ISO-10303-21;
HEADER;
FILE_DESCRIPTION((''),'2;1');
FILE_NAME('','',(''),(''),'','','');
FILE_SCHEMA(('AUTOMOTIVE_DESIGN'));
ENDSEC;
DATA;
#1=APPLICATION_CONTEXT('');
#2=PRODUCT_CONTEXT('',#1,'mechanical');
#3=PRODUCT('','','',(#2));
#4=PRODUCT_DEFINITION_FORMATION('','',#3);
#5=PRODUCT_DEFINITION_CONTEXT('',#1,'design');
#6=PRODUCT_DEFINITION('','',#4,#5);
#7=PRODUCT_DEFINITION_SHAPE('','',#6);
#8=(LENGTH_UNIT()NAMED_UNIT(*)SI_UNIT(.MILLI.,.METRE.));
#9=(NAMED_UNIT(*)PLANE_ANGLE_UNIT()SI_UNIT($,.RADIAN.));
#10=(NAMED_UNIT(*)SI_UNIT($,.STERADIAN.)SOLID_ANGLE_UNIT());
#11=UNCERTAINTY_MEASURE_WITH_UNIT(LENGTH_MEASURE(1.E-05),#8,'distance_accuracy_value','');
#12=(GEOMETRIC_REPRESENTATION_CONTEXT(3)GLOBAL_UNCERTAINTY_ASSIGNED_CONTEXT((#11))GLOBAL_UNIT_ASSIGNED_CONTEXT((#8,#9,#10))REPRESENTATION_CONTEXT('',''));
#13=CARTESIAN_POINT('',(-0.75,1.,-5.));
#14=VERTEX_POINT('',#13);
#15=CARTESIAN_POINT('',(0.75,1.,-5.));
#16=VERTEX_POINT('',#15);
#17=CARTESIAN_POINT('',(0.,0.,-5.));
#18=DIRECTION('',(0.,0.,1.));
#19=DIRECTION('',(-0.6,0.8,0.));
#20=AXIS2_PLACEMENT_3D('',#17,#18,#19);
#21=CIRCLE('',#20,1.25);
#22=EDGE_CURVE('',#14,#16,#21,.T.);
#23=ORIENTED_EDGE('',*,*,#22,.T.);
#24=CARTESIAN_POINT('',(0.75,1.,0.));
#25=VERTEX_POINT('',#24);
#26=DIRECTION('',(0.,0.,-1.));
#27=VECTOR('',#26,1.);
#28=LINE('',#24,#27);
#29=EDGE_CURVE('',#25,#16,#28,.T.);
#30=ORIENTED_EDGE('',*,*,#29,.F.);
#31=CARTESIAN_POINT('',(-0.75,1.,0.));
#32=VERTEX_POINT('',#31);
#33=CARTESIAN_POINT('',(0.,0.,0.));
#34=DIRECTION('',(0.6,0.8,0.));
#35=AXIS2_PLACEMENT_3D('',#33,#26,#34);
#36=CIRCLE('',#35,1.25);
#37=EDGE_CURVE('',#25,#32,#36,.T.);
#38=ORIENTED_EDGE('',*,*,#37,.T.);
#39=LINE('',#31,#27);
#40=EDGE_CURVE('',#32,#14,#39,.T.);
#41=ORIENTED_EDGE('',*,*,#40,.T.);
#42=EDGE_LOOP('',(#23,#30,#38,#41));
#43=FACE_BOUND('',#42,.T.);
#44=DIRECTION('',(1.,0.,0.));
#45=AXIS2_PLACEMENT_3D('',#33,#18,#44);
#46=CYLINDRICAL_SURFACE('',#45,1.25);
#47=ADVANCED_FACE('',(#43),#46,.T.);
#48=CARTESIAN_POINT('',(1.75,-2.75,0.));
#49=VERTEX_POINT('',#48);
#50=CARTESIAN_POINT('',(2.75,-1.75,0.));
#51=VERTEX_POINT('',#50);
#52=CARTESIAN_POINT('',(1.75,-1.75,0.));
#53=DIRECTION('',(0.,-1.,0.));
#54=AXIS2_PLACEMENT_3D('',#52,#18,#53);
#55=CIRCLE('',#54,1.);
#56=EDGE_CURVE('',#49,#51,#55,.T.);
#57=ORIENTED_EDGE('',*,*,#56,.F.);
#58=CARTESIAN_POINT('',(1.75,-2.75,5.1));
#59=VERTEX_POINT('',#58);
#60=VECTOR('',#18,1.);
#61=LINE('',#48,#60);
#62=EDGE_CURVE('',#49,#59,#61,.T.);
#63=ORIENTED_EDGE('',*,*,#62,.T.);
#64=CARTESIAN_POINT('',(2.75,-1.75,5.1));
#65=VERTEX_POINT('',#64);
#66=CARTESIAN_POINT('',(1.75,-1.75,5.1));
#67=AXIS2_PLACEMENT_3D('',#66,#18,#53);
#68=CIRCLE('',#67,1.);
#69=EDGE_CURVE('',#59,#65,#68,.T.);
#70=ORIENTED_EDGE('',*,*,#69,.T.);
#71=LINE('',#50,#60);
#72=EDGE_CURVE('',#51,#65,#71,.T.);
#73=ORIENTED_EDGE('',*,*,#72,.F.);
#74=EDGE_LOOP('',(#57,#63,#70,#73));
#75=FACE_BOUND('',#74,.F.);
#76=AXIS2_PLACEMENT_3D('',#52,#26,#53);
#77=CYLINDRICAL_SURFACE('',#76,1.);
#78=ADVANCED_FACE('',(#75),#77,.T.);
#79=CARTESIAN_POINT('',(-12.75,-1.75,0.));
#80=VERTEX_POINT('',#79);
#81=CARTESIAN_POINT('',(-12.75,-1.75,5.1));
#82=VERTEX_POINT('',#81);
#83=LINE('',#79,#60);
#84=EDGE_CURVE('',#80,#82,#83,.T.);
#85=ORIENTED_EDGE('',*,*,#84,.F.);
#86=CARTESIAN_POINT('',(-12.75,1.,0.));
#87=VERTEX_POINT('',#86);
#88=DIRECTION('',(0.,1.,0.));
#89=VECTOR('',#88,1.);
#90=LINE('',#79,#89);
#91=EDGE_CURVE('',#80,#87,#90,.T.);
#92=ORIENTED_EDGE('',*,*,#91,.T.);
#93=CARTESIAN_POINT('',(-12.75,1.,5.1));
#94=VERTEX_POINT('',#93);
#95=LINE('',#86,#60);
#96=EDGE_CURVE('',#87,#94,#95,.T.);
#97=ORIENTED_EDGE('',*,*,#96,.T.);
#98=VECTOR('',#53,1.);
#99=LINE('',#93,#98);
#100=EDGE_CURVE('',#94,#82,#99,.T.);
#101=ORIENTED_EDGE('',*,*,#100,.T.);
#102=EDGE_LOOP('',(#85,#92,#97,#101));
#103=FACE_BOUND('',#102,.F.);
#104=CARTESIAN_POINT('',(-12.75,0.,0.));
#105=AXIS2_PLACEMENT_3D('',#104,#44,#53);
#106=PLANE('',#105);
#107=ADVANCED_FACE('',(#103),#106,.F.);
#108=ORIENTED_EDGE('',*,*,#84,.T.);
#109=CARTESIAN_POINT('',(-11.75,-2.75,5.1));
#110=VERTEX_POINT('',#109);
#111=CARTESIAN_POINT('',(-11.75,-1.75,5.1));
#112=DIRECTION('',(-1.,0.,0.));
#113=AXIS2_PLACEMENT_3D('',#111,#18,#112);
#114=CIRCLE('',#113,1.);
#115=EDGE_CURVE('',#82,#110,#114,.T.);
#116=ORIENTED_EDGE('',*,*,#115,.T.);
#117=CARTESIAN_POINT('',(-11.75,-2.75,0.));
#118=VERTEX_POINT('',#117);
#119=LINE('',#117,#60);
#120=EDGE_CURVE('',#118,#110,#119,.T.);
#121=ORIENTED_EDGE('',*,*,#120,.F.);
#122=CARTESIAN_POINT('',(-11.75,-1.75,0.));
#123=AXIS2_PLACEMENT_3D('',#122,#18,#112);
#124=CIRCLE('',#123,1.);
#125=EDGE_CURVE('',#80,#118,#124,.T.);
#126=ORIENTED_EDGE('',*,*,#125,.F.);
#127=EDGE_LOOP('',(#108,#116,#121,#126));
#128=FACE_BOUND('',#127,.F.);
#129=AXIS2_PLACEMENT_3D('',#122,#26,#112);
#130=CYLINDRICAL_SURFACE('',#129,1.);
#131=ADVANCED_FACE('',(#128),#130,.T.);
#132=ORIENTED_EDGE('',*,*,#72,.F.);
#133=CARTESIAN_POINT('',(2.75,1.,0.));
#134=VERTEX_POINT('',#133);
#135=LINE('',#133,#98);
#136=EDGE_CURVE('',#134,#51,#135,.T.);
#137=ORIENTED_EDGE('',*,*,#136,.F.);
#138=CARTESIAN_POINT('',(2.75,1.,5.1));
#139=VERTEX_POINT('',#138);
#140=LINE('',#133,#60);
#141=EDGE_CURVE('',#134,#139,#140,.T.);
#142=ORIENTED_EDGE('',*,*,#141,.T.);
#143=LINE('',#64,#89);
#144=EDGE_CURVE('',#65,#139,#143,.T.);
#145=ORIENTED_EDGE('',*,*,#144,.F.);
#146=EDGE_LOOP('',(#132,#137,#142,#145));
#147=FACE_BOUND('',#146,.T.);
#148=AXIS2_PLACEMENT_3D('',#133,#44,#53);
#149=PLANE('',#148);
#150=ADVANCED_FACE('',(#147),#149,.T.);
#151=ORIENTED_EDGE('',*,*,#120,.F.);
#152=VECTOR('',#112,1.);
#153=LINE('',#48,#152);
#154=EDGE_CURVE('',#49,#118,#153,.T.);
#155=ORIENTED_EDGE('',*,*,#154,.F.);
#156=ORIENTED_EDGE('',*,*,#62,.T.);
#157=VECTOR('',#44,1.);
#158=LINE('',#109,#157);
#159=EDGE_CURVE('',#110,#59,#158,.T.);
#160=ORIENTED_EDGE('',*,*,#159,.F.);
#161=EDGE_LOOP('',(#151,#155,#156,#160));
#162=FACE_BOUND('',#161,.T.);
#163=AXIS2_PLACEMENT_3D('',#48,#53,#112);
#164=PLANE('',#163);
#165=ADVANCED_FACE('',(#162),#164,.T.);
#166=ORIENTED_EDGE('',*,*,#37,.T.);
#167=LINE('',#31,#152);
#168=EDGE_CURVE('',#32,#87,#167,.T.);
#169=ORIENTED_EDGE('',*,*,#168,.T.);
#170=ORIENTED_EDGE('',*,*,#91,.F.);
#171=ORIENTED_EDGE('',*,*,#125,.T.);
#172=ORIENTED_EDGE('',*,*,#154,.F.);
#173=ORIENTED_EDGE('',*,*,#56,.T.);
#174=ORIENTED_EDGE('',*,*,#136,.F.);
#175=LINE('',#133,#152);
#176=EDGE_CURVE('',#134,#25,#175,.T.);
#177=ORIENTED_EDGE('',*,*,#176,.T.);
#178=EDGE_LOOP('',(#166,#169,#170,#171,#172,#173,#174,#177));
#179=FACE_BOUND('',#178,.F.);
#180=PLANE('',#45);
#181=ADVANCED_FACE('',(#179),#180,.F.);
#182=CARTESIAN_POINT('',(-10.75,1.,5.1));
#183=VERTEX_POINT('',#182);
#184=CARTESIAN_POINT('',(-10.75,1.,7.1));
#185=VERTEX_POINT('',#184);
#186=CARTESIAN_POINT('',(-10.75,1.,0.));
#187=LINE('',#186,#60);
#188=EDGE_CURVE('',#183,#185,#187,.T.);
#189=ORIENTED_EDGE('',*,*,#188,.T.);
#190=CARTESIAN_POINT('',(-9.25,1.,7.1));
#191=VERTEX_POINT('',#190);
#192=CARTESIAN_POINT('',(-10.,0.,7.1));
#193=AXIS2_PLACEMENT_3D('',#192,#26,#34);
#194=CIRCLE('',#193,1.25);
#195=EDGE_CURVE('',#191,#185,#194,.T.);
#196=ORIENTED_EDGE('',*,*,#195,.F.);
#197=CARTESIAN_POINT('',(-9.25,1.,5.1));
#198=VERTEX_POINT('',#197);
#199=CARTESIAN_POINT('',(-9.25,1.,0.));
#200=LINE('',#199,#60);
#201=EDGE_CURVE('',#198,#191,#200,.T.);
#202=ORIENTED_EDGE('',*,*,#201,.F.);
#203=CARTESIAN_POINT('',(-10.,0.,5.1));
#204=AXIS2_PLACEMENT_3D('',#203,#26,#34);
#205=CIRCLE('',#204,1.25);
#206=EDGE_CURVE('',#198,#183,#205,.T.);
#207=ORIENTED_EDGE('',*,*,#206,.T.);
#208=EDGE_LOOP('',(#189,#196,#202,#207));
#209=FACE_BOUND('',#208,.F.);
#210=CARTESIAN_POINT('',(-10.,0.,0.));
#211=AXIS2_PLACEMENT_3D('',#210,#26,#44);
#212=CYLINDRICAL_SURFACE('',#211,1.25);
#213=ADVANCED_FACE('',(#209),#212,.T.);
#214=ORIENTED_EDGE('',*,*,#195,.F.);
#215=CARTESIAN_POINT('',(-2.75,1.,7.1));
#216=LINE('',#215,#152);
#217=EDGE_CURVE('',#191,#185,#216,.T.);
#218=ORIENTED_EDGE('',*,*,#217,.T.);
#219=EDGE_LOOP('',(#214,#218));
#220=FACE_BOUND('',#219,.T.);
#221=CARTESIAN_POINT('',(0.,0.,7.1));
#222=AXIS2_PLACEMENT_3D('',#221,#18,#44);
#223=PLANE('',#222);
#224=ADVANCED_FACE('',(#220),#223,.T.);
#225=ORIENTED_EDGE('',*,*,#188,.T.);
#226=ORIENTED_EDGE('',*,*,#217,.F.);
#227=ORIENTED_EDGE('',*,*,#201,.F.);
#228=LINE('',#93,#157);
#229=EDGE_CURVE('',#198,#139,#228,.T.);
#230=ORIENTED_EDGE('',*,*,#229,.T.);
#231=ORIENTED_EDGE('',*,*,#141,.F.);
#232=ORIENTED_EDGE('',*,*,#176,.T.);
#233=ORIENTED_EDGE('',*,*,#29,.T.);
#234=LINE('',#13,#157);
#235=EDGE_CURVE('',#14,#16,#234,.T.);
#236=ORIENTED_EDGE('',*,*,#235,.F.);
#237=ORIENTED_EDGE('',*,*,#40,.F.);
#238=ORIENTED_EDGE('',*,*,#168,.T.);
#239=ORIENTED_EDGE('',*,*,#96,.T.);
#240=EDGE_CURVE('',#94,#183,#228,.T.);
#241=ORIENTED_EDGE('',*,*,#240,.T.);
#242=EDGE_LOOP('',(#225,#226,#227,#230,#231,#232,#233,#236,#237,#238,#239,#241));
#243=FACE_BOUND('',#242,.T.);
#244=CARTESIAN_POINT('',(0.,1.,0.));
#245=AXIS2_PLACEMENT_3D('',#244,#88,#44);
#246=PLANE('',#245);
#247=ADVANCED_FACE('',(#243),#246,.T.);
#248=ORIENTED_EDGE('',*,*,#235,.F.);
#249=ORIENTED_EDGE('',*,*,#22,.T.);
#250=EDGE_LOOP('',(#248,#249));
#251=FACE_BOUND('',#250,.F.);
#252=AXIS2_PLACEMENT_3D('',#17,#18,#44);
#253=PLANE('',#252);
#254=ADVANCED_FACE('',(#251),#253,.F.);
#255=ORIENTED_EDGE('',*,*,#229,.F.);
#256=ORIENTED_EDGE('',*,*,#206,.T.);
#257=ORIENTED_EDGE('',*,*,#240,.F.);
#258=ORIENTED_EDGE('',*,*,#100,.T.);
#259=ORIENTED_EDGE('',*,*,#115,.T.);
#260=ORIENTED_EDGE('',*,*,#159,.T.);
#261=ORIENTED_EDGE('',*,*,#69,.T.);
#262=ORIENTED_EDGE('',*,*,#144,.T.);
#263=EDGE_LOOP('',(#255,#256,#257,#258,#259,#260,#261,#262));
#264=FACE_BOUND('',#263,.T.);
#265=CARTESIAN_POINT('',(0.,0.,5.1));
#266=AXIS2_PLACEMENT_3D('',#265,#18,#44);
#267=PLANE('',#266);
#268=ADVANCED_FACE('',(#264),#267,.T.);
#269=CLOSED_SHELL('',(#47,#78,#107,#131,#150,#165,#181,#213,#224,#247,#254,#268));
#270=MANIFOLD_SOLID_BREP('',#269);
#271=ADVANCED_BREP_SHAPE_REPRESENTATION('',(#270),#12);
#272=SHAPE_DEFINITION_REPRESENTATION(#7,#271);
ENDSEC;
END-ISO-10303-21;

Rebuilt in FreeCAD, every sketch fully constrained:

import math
import FreeCAD as App
import Part
import Sketcher
from FreeCAD import Vector

doc = App.newDocument("Part")
body = doc.addObject("PartDesign::Body", "Body")

# Sketch on XY plane
sketch1 = body.newObject("Sketcher::SketchObject", "Sketch")
sketch1.AttachmentSupport = (doc.getObject("XY_Plane"), [""])
sketch1.MapMode = "FlatFace"
sketch1.addGeometry(Part.LineSegment(Vector(0.8, 1, 0), Vector(-0.8, 1, 0)), False)
sketch1.addGeometry(Part.ArcOfCircle(Part.Circle(Vector(0, 0, 0), Vector(0, 0, 1), 1.2), math.radians(127), math.radians(413)), False)
sketch1.addConstraint(Sketcher.Constraint("Coincident", 0, 1, 1, 2))
sketch1.addConstraint(Sketcher.Constraint("Coincident", 1, 1, 0, 2))
sketch1.addConstraint(Sketcher.Constraint("Horizontal", 0))
sketch1.addConstraint(Sketcher.Constraint("Coincident", 1, 3, -1, 1))
sketch1.addConstraint(Sketcher.Constraint("Radius", 1, 1.25))
sketch1.addConstraint(Sketcher.Constraint("DistanceY", -1, 1, 0, 1, 1.0))
pad1 = body.newObject("PartDesign::Pad", "Pad")
pad1.Profile = sketch1
pad1.Length = 5
pad1.Reversed = True

# Sketch on XY plane
sketch2 = body.newObject("Sketcher::SketchObject", "Sketch001")
sketch2.AttachmentSupport = (doc.getObject("XY_Plane"), [""])
sketch2.MapMode = "FlatFace"
sketch2.addGeometry(Part.LineSegment(Vector(-12.8, 1, 0), Vector(-12.8, -1.8, 0)), False)
sketch2.addGeometry(Part.ArcOfCircle(Part.Circle(Vector(-11.8, -1.8, 0), Vector(0, 0, 1), 1), math.radians(180), math.radians(270)), False)
sketch2.addGeometry(Part.LineSegment(Vector(-11.8, -2.8, 0), Vector(1.8, -2.8, 0)), False)
sketch2.addGeometry(Part.ArcOfCircle(Part.Circle(Vector(1.8, -1.8, 0), Vector(0, 0, 1), 1), math.radians(-90), math.radians(0)), False)
sketch2.addGeometry(Part.LineSegment(Vector(2.8, -1.8, 0), Vector(2.8, 1, 0)), False)
sketch2.addGeometry(Part.LineSegment(Vector(2.8, 1, 0), Vector(-12.8, 1, 0)), False)
sketch2.addConstraint(Sketcher.Constraint("Tangent", 0, 2, 1, 1))
sketch2.addConstraint(Sketcher.Constraint("Tangent", 1, 2, 2, 1))
sketch2.addConstraint(Sketcher.Constraint("Tangent", 2, 2, 3, 1))
sketch2.addConstraint(Sketcher.Constraint("Tangent", 3, 2, 4, 1))
sketch2.addConstraint(Sketcher.Constraint("Coincident", 4, 2, 5, 1))
sketch2.addConstraint(Sketcher.Constraint("Coincident", 5, 2, 0, 1))
sketch2.addConstraint(Sketcher.Constraint("Vertical", 0))
sketch2.addConstraint(Sketcher.Constraint("Horizontal", 2))
sketch2.addConstraint(Sketcher.Constraint("Vertical", 4))
sketch2.addConstraint(Sketcher.Constraint("Horizontal", 5))
sketch2.addConstraint(Sketcher.Constraint("Equal", 1, 3))
sketch2.addConstraint(Sketcher.Constraint("Radius", 1, 1.0))
sketch2.addConstraint(Sketcher.Constraint("DistanceY", -1, 1, 4, 2, 1.0))
sketch2.addConstraint(Sketcher.Constraint("DistanceX", 2, 1, 2, 2, 13.5))
sketch2.addConstraint(Sketcher.Constraint("DistanceY", 0, 2, 0, 1, 2.75))
sketch2.addConstraint(Sketcher.Constraint("DistanceX", 1, 3, -1, 1, 11.75))
pad2 = body.newObject("PartDesign::Pad", "Pad001")
pad2.Profile = sketch2
pad2.Length = 5.1

# Sketch on XY plane
sketch3 = body.newObject("Sketcher::SketchObject", "Sketch002")
sketch3.AttachmentSupport = (doc.getObject("XY_Plane"), [""])
sketch3.MapMode = "FlatFace"
sketch3.addGeometry(Part.ArcOfCircle(Part.Circle(Vector(-10, 0, 0), Vector(0, 0, 1), 1.2), math.radians(127), math.radians(413)), False)
sketch3.addGeometry(Part.LineSegment(Vector(-9.2, 1, 0), Vector(-10.8, 1, 0)), False)
sketch3.addConstraint(Sketcher.Constraint("Coincident", 0, 1, 1, 2))
sketch3.addConstraint(Sketcher.Constraint("Coincident", 1, 1, 0, 2))
sketch3.addConstraint(Sketcher.Constraint("Horizontal", 1))
sketch3.addConstraint(Sketcher.Constraint("PointOnObject", 0, 3, -1))
sketch3.addConstraint(Sketcher.Constraint("Radius", 0, 1.25))
sketch3.addConstraint(Sketcher.Constraint("DistanceX", 0, 3, -1, 1, 10.0))
sketch3.addConstraint(Sketcher.Constraint("DistanceY", -1, 1, 0, 1, 1.0))
pad3 = body.newObject("PartDesign::Pad", "Pad002")
pad3.Profile = sketch3
pad3.Length = 7.1

doc.recompute()
